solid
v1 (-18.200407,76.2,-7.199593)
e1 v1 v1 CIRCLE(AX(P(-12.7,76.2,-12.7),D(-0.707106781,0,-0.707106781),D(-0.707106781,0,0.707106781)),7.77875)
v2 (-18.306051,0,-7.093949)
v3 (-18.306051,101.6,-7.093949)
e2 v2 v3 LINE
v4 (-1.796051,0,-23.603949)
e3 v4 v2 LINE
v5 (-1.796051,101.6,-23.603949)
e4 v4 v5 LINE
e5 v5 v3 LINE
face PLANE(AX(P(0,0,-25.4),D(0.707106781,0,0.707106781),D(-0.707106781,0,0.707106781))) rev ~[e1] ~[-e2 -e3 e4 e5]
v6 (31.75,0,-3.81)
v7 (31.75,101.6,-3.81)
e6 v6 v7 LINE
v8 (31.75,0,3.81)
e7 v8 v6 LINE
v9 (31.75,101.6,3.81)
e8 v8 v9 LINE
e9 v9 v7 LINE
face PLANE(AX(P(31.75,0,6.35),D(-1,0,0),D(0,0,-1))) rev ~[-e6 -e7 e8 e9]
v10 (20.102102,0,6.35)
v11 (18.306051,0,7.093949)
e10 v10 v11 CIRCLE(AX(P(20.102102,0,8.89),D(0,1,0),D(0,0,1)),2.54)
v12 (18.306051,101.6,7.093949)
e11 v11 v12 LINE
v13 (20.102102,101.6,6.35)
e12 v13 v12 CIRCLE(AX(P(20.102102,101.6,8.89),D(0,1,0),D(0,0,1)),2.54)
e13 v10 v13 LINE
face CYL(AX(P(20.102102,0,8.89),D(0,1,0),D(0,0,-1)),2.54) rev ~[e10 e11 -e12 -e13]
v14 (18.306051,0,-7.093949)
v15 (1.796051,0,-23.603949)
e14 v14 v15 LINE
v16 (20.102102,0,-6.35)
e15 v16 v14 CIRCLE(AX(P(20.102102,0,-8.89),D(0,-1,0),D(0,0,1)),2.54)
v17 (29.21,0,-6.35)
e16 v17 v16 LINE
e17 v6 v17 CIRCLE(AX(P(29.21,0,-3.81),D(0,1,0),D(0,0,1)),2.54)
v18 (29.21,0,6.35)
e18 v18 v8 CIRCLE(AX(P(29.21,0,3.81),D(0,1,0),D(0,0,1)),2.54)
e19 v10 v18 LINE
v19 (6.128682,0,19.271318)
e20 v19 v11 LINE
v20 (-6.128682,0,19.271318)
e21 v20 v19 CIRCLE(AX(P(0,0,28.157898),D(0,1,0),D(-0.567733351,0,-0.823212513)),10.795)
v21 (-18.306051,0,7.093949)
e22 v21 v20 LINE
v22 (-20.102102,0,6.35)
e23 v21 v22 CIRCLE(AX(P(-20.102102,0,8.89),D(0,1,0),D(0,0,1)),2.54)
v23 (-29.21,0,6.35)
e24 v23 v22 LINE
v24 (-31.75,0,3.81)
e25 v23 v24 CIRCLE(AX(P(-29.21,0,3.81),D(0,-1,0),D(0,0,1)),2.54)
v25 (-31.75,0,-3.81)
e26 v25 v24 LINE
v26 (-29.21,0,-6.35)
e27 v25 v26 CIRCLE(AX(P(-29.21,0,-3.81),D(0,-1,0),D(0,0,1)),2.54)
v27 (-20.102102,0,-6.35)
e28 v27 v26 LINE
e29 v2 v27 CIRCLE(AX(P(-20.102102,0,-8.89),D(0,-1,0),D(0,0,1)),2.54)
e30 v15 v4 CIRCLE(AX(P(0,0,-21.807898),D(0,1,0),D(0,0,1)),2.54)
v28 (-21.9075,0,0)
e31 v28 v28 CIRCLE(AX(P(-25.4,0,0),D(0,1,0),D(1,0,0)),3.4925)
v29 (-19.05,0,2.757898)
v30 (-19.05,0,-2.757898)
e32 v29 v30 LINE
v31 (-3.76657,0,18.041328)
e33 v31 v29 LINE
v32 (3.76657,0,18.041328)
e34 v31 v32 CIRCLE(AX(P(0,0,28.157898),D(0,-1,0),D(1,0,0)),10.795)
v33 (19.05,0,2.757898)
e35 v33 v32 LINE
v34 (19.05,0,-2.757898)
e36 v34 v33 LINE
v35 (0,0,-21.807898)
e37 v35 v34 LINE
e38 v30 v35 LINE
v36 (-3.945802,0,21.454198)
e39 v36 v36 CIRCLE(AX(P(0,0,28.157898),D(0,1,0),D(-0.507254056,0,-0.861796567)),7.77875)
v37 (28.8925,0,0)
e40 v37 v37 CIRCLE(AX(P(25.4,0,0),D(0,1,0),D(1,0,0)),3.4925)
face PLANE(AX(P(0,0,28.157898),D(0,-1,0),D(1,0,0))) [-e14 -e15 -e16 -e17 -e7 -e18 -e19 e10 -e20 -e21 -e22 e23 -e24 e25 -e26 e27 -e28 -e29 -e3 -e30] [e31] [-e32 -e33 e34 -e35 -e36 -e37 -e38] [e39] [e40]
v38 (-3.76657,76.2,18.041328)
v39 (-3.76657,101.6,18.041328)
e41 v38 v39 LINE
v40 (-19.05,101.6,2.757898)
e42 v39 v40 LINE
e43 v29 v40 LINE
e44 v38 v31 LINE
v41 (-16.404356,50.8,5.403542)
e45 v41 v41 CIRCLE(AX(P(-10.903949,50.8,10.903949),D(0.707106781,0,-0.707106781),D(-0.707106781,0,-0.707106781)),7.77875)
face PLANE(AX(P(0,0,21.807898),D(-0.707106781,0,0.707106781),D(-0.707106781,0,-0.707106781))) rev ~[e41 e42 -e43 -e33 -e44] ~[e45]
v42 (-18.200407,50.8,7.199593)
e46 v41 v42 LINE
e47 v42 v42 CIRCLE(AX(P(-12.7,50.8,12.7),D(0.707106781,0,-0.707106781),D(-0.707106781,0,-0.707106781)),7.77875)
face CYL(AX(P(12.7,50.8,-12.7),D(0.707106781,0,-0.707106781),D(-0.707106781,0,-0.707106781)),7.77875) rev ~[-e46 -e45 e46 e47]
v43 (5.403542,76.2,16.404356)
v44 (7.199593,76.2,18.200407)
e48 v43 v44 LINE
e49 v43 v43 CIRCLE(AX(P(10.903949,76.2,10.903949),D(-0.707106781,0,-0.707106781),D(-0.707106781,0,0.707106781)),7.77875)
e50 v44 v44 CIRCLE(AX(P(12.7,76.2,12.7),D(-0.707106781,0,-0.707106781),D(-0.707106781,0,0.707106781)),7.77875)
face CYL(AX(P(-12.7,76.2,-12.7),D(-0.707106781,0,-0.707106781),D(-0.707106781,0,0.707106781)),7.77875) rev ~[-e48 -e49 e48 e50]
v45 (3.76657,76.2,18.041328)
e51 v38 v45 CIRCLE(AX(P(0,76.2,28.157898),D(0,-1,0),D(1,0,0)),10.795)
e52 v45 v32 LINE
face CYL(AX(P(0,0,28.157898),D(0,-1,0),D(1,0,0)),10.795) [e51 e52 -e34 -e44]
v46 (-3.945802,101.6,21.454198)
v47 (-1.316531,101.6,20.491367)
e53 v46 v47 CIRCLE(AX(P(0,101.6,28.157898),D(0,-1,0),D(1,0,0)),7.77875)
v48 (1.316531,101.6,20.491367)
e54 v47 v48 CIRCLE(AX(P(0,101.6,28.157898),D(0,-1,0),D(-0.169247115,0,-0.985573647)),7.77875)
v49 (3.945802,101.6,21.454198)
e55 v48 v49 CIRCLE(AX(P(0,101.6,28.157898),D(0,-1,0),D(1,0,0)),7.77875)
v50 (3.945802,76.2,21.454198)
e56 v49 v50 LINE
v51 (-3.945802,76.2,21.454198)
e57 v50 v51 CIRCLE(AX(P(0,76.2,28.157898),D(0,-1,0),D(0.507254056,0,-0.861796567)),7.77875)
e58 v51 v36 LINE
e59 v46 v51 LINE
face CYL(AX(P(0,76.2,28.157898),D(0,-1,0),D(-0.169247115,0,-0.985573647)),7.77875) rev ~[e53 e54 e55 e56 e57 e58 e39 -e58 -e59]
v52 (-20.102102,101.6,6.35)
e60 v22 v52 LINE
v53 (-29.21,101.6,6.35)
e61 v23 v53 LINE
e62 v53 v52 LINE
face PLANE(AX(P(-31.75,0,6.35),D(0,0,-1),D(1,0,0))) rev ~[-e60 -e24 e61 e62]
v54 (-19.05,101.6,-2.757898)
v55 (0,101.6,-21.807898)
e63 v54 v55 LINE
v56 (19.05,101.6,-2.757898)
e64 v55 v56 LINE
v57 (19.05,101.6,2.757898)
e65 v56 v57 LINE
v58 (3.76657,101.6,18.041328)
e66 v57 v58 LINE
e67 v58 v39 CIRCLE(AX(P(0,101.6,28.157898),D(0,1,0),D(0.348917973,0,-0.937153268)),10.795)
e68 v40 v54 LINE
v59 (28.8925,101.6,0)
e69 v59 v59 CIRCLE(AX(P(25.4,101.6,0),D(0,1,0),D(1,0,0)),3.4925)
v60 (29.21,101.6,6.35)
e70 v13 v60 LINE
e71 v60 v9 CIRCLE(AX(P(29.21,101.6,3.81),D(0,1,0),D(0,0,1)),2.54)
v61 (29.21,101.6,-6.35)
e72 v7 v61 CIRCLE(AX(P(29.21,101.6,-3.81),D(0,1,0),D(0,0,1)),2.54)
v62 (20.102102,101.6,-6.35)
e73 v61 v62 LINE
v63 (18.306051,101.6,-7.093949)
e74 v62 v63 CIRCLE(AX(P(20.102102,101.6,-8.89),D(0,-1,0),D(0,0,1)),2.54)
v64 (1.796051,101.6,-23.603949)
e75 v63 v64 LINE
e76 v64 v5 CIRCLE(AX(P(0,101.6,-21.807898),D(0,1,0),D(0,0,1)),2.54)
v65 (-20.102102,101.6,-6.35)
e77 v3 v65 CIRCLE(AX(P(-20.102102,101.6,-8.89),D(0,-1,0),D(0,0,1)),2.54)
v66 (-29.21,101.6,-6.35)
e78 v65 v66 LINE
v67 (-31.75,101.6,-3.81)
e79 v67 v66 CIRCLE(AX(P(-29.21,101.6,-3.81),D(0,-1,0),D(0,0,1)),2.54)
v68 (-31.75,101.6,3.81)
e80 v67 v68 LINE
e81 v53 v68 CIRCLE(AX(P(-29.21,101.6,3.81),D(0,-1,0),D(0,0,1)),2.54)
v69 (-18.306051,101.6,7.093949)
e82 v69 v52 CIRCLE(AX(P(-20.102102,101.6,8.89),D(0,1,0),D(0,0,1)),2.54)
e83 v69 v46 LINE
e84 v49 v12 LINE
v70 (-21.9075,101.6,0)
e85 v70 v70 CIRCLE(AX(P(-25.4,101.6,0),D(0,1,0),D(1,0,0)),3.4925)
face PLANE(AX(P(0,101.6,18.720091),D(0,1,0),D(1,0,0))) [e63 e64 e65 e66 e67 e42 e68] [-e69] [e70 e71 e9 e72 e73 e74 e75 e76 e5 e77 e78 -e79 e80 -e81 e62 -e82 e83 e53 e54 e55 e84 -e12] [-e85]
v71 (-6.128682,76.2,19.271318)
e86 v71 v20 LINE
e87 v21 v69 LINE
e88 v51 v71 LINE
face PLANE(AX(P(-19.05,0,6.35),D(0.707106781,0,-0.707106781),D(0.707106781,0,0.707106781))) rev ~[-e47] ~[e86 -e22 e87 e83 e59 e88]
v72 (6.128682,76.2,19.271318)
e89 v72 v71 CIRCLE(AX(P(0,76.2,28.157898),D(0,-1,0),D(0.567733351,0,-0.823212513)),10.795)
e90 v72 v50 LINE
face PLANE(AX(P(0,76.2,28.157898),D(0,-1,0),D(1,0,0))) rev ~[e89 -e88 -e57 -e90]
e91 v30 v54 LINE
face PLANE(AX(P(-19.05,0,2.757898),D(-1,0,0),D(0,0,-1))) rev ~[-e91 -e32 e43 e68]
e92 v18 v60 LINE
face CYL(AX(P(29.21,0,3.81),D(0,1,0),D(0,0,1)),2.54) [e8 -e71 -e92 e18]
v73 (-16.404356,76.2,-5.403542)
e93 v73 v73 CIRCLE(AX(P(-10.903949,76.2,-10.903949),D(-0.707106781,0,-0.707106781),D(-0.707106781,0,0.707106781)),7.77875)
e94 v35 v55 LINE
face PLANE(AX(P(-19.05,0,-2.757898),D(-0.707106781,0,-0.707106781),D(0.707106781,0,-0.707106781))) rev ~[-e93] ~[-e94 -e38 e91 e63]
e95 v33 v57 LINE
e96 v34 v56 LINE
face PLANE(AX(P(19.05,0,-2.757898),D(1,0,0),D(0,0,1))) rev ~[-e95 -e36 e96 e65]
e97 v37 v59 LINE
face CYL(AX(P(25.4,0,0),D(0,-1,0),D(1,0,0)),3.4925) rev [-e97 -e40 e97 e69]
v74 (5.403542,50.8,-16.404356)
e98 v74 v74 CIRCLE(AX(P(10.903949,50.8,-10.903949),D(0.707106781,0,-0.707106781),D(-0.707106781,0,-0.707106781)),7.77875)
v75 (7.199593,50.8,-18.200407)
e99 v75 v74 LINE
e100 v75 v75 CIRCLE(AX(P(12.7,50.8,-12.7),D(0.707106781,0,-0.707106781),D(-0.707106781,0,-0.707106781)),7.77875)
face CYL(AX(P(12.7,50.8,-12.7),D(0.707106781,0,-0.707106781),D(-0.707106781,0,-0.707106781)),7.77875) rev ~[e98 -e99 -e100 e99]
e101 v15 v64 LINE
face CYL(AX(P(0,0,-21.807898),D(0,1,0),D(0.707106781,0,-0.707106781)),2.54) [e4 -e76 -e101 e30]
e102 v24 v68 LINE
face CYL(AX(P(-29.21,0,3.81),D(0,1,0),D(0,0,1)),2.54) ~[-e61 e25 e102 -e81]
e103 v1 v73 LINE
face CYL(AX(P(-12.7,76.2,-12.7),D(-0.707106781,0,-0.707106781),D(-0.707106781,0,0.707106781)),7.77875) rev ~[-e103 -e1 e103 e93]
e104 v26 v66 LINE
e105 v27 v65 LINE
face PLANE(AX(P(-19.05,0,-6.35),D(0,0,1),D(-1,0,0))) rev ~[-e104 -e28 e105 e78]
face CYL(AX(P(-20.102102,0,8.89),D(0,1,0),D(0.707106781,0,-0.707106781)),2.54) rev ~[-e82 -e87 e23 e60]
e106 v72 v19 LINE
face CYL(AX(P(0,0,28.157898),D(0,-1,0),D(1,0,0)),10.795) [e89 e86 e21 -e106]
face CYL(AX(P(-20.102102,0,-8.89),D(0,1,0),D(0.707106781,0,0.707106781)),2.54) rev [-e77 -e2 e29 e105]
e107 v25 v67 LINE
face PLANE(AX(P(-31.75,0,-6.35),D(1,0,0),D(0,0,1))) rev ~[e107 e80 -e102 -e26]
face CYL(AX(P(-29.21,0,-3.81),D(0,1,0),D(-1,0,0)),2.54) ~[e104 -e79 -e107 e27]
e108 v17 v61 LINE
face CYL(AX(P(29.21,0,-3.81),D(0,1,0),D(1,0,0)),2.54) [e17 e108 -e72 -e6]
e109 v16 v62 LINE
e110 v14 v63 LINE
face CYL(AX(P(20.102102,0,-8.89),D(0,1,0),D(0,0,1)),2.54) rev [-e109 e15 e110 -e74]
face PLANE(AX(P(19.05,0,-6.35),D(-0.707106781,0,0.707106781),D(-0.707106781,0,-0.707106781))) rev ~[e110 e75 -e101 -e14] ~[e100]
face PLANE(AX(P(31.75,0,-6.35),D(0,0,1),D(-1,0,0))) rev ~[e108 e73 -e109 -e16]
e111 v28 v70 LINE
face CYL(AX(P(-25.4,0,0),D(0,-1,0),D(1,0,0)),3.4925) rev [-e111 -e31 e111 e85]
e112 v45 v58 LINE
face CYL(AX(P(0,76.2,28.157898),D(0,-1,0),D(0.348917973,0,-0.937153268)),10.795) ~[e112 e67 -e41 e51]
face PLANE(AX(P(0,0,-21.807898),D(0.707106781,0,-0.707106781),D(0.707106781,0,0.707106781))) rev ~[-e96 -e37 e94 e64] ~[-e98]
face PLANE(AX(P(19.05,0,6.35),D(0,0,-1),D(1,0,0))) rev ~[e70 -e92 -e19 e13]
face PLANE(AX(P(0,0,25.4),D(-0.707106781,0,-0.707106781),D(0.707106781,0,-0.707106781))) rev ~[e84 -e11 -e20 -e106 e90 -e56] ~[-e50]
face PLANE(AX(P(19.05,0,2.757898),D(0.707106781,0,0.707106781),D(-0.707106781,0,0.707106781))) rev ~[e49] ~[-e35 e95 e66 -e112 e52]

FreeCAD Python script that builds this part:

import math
import FreeCAD as App
import Part
import Sketcher
from FreeCAD import Vector
Q = App.Units.Quantity


def edges_at(feature, points):
    """Names of the edges that pass closest to the given points."""
    edges = feature.Shape.Edges
    near = lambda p: min(range(len(edges)), key=lambda i: edges[i].distToShape(Part.Vertex(*p))[0])
    return sorted({f"Edge{near(p) + 1}" for p in points})


def add_polygon(sketch, points):
    """Adds a closed chain of lines whose ends are joined by coincident constraints."""
    first, n = sketch.GeometryCount, len(points)
    for a, b in zip(points, points[1:] + points[:1]):
        sketch.addGeometry(Part.LineSegment(App.Vector(*a, 0), App.Vector(*b, 0)), False)
    for i in range(n):
        sketch.addConstraint(Sketcher.Constraint("Coincident", first + i, 2, first + (i + 1) % n, 1))

doc = App.newDocument("Part")
body = doc.addObject("PartDesign::Body", "Body")

# Sketch on XZ plane
sketch1 = body.newObject("Sketcher::SketchObject", "Sketch")
sketch1.AttachmentSupport = (doc.getObject("XZ_Plane"), [""])
sketch1.MapMode = "FlatFace"
add_polygon(sketch1, [(19.05, 6.35), (31.75, 6.35), (31.75, -6.35), (19.05, -6.35), (0, -25.4), (-19.05, -6.35), (-31.75, -6.35), (-31.75, 6.35), (-19.05, 6.35), (0, 25.4)])  # lines 0-9
sketch1.addGeometry(Part.Circle(Vector(-25.4, 0, 0), Vector(0, 0, 1), 3.4925), False)  # 10
add_polygon(sketch1, [(-19.05, 2.757898), (-19.05, -2.757898), (0, -21.807898), (19.05, -2.757898), (19.05, 2.757898), (0, 21.807898)])  # lines 11-16
sketch1.addGeometry(Part.Circle(Vector(25.4, 0, 0), Vector(0, 0, 1), 3.4925), False)  # 17
sketch1.addConstraint(Sketcher.Constraint("Horizontal", 0))
sketch1.addConstraint(Sketcher.Constraint("Vertical", 1))
sketch1.addConstraint(Sketcher.Constraint("Horizontal", 2))
sketch1.addConstraint(Sketcher.Constraint("Horizontal", 5))
sketch1.addConstraint(Sketcher.Constraint("Vertical", 6))
sketch1.addConstraint(Sketcher.Constraint("Horizontal", 7))
sketch1.addConstraint(Sketcher.Constraint("Vertical", 11))
sketch1.addConstraint(Sketcher.Constraint("Vertical", 14))
sketch1.addConstraint(Sketcher.Constraint("Equal", 10, 17))
sketch1.addConstraint(Sketcher.Constraint("Symmetric", 10, 3, 17, 3, -1, 1))
sketch1.addConstraint(Sketcher.Constraint("Symmetric", 0, 2, 5, 2, -1, 1))
sketch1.addConstraint(Sketcher.Constraint("Symmetric", 2, 2, 7, 2, -1, 1))
sketch1.addConstraint(Sketcher.Constraint("Symmetric", 3, 2, 8, 2, -1, 1))
sketch1.addConstraint(Sketcher.Constraint("Symmetric", 11, 2, 14, 2, -1, 1))
sketch1.addConstraint(Sketcher.Constraint("Symmetric", 12, 2, 15, 2, -1, 1))
sketch1.addConstraint(Sketcher.Constraint("Symmetric", 2, 2, 4, 2, -2))
sketch1.addConstraint(Sketcher.Constraint("PointOnObject", 10, 3, -1))
sketch1.addConstraint(Sketcher.Constraint("PointOnObject", 3, 2, -2))
sketch1.addConstraint(Sketcher.Constraint("PointOnObject", 12, 2, -2))
sketch1.addConstraint(Sketcher.Constraint("Perpendicular", 3, 4))
sketch1.addConstraint(Sketcher.Constraint("Perpendicular", 8, 9))
sketch1.addConstraint(Sketcher.Constraint("Parallel", 9, 12))
sketch1.addConstraint(Sketcher.Constraint("Perpendicular", 12, 13))
sketch1.addConstraint(Sketcher.Constraint("Perpendicular", 15, 16))
sketch1.addConstraint(Sketcher.Constraint("Vertical", 7, 2, 11, 2))
sketch1.addConstraint(Sketcher.Constraint("Equal", 7, 1))
sketch1.addConstraint(Sketcher.Constraint("Diameter", 10, Q("0.275 in")))
sketch1.addConstraint(Sketcher.Constraint("DistanceX", 0, 1, 0, 2, Q("0.5 in")))
sketch1.addConstraint(Sketcher.Constraint("DistanceX", 10, 3, -1, 1, Q("1 in")))
sketch1.addConstraint(Sketcher.Constraint("DistanceY", 3, 2, -1, 1, Q("1 in")))
sketch1.addConstraint(Sketcher.Constraint("DistanceY", 11, 2, 11, 1, Q("5.515795 mm")))
pad1 = body.newObject("PartDesign::Pad", "Pad")
pad1.Profile = sketch1
pad1.Length = Q("4 in")
pad1.Reversed = True
doc.recompute()

fillet = body.newObject("PartDesign::Fillet", "Fillet")
fillet.Base = (pad1, edges_at(pad1, [
    (0, 50.8, 25.4),
    (-19.05, 50.8, 6.35),
    (-31.75, 50.8, 6.35),
    (-31.75, 50.8, -6.35),
    (-19.05, 50.8, -6.35),
    (0, 50.8, -25.4),
    (19.05, 50.8, -6.35),
    (31.75, 50.8, -6.35),
    (31.75, 50.8, 6.35),
    (19.05, 50.8, 6.35),
]))
fillet.Radius = Q("0.1 in")

# Sketch on an angled plane
sketch2 = body.newObject("Sketcher::SketchObject", "Sketch001")
sketch2.Placement = App.Placement(Vector(-12.7, 0, -12.7), App.Rotation(Vector(-0.707106781, 0, 0.707106781), Vector(0, 0.999999999, 0), Vector(-0.707106781, 0, -0.707106781), "ZXY"))
sketch2.addGeometry(Part.Circle(Vector(0, 76.2, 0), Vector(0, 0, 1), 7.77875), False)
sketch2.addConstraint(Sketcher.Constraint("PointOnObject", 0, 3, -2))
sketch2.addConstraint(Sketcher.Constraint("DistanceY", -1, 1, 0, 3, Q("3 in")))
sketch2.addConstraint(Sketcher.Constraint("Diameter", 0, Q("0.6125 in")))
pocket1 = body.newObject("PartDesign::Pocket", "Pocket")
pocket1.Profile = sketch2
pocket1.Type = "ThroughAll"
pocket1.Midplane = True

# Sketch on an angled plane
sketch3 = body.newObject("Sketcher::SketchObject", "Sketch002")
sketch3.Placement = App.Placement(Vector(12.7, 0, -12.7), App.Rotation(Vector(-0.707106781, 0, -0.707106781), Vector(0, 0.999999999, 0), Vector(0.707106781, 0, -0.707106781), "ZXY"))
sketch3.addGeometry(Part.Circle(Vector(0, 50.8, 0), Vector(0, 0, 1), 7.77875), False)
sketch3.addConstraint(Sketcher.Constraint("PointOnObject", 0, 3, -2))
sketch3.addConstraint(Sketcher.Constraint("DistanceY", -1, 1, 0, 3, Q("2 in")))
sketch3.addConstraint(Sketcher.Constraint("Diameter", 0, Q("0.6125 in")))
pocket2 = body.newObject("PartDesign::Pocket", "Pocket001")
pocket2.Profile = sketch3
pocket2.Type = "ThroughAll"
pocket2.Midplane = True

# Sketch on XZ plane
sketch4 = body.newObject("Sketcher::SketchObject", "Sketch003")
sketch4.AttachmentSupport = (doc.getObject("XZ_Plane"), [""])
sketch4.MapMode = "FlatFace"
sketch4.addGeometry(Part.Circle(Vector(0, 28.157898, 0), Vector(0, 0, 1), 10.795), False)
sketch4.addGeometry(Part.Circle(Vector(0, 28.157898, 0), Vector(0, 0, 1), 7.77875), False)
sketch4.addConstraint(Sketcher.Constraint("Coincident", 1, 3, 0, 3))
sketch4.addConstraint(Sketcher.Constraint("PointOnObject", 0, 3, -2))
sketch4.addConstraint(Sketcher.Constraint("Diameter", 0, Q("0.85 in")))
sketch4.addConstraint(Sketcher.Constraint("Diameter", 1, Q("0.6125 in")))
sketch4.addConstraint(Sketcher.Constraint("DistanceY", -1, 1, 0, 3, Q("28.157898 mm")))
pad2 = body.newObject("PartDesign::Pad", "Pad001")
pad2.Profile = sketch4
pad2.Length = Q("3 in")
pad2.Reversed = True

# Sketch on XZ plane
sketch5 = body.newObject("Sketcher::SketchObject", "Sketch004")
sketch5.AttachmentSupport = (doc.getObject("XZ_Plane"), [""])
sketch5.MapMode = "FlatFace"
sketch5.addGeometry(Part.Circle(Vector(0, 28.157898, 0), Vector(0, 0, 1), 7.77875), False)
sketch5.addConstraint(Sketcher.Constraint("PointOnObject", 0, 3, -2))
sketch5.addConstraint(Sketcher.Constraint("Diameter", 0, Q("0.6125 in")))
sketch5.addConstraint(Sketcher.Constraint("DistanceY", -1, 1, 0, 3, Q("28.157898 mm")))
pocket3 = body.newObject("PartDesign::Pocket", "Pocket002")
pocket3.Profile = sketch5
pocket3.Type = "ThroughAll"

# Sketch on XZ plane
sketch6 = body.newObject("Sketcher::SketchObject", "Sketch005")
sketch6.AttachmentSupport = (doc.getObject("XZ_Plane"), [""])
sketch6.MapMode = "FlatFace"
sketch6.AttachmentOffset = App.Placement(Vector(0, 0, -3 * 25.4), App.Rotation())
sketch6.addGeometry(Part.LineSegment(Vector(1.316531, 20.491367, 0), Vector(3.76657, 18.041328, 0)), False)
sketch6.addGeometry(Part.ArcOfCircle(Part.Circle(Vector(0, 28.157898, 0), Vector(0, 0, 1), 10.795), math.radians(-110.421148), math.radians(-69.578852)), False)
sketch6.addGeometry(Part.LineSegment(Vector(-3.76657, 18.041328, 0), Vector(-1.316531, 20.491367, 0)), False)
sketch6.addGeometry(Part.ArcOfCircle(Part.Circle(Vector(0, 28.157898, 0), Vector(0, 0, 1), 7.77875), math.radians(-99.744048), math.radians(-80.255952)), False)
sketch6.addConstraint(Sketcher.Constraint("Coincident", 0, 2, 1, 2))
sketch6.addConstraint(Sketcher.Constraint("Coincident", 1, 1, 2, 1))
sketch6.addConstraint(Sketcher.Constraint("Coincident", 2, 2, 3, 1))
sketch6.addConstraint(Sketcher.Constraint("Coincident", 3, 2, 0, 1))
sketch6.addConstraint(Sketcher.Constraint("Coincident", 3, 3, 1, 3))
sketch6.addConstraint(Sketcher.Constraint("Symmetric", 0, 2, 1, 1, -2))
sketch6.addConstraint(Sketcher.Constraint("Perpendicular", 0, 2))
sketch6.addConstraint(Sketcher.Constraint("Horizontal", 2, 2, 3, 2))
sketch6.addConstraint(Sketcher.Constraint("Radius", 1, Q("0.425 in")))
sketch6.addConstraint(Sketcher.Constraint("Radius", 3, Q("7.77875 mm")))
sketch6.addConstraint(Sketcher.Constraint("DistanceX", 2, 2, 0, 2, Q("5.083101 mm")))
sketch6.addConstraint(Sketcher.Constraint("DistanceY", -1, 1, 0, 2, Q("18.041328 mm")))
pad3 = body.newObject("PartDesign::Pad", "Pad002")
pad3.Profile = sketch6
pad3.Length = Q("1 in")
pad3.Reversed = True

doc.recompute()
